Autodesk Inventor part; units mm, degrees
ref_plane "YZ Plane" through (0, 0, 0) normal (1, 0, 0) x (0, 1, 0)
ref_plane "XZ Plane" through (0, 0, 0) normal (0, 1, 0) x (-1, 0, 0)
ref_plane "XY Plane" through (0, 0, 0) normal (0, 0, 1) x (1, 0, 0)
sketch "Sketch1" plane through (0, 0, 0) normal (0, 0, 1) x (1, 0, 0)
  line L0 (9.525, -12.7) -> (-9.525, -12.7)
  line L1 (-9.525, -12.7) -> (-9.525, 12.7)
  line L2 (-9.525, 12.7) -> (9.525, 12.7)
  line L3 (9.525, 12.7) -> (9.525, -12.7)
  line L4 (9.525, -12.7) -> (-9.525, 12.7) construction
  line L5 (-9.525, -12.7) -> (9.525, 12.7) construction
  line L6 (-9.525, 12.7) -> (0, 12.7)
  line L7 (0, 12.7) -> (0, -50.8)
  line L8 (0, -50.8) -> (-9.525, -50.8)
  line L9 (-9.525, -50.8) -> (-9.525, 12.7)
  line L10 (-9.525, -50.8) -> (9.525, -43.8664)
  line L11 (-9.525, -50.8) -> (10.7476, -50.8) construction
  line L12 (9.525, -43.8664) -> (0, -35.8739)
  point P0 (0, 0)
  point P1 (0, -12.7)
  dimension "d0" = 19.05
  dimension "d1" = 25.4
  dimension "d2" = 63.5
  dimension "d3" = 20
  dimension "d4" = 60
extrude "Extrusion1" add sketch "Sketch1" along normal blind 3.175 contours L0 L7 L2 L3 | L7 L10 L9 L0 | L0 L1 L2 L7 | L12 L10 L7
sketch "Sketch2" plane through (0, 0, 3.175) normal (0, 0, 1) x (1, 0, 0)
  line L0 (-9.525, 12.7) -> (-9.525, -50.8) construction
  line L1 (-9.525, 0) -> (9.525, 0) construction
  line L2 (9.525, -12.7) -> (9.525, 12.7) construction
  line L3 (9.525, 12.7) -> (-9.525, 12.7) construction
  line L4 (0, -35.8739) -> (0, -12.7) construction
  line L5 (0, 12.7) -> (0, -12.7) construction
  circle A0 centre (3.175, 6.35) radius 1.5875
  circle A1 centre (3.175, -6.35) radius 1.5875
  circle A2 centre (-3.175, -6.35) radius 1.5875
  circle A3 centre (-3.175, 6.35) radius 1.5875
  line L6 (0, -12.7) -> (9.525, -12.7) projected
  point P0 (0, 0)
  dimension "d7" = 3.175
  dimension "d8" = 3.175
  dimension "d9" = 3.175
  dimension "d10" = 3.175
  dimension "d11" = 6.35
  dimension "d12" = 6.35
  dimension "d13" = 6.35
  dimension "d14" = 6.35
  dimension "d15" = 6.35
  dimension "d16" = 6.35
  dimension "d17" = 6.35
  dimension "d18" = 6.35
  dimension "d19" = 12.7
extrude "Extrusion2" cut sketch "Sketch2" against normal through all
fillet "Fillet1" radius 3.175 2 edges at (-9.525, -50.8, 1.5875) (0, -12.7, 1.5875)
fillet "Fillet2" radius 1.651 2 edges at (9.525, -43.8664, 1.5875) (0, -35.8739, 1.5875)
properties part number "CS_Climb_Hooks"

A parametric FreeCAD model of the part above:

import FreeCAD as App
import Part
import Sketcher

V = App.Vector
Q = App.Units.Quantity


def edges_at(feature, points):
    """Names of the edges that pass closest to the given points."""
    edges = feature.Shape.Edges
    near = lambda p: min(range(len(edges)), key=lambda i: edges[i].distToShape(Part.Vertex(*p))[0])
    return sorted({f"Edge{near(p) + 1}" for p in points})

doc = App.newDocument("Part")
body = doc.addObject("PartDesign::Body", "Body")

# Sketch on XY plane
sketch1 = body.newObject("Sketcher::SketchObject", "Sketch")
sketch1.AttachmentSupport = (doc.getObject("XY_Plane"), [""])
sketch1.MapMode = "FlatFace"
sketch1.addGeometry([
    Part.LineSegment(V(0, -13, 0), V(10, -13, 0)),  # 0
    Part.LineSegment(V(10, -13, 0), V(10, 13, 0)),  # 1
    Part.LineSegment(V(10, 13, 0), V(-10, 13, 0)),  # 2
    Part.LineSegment(V(-10, 13, 0), V(-10, -51, 0)),  # 3
    Part.LineSegment(V(-10, -51, 0), V(10, -44, 0)),  # 4
    Part.LineSegment(V(10, -44, 0), V(0, -36, 0)),  # 5
    Part.LineSegment(V(0, -36, 0), V(0, -13, 0)),  # 6
], False)
sketch1.addConstraint([
    Sketcher.Constraint("Coincident", 0, 2, 1, 1),
    Sketcher.Constraint("Coincident", 1, 2, 2, 1),
    Sketcher.Constraint("Coincident", 2, 2, 3, 1),
    Sketcher.Constraint("Coincident", 3, 2, 4, 1),
    Sketcher.Constraint("Coincident", 4, 2, 5, 1),
    Sketcher.Constraint("Coincident", 5, 2, 6, 1),
    Sketcher.Constraint("Coincident", 6, 2, 0, 1),
    Sketcher.Constraint("Horizontal", 0),
    Sketcher.Constraint("Vertical", 1),
    Sketcher.Constraint("Horizontal", 2),
    Sketcher.Constraint("Vertical", 3),
    Sketcher.Constraint("Vertical", 6),
    Sketcher.Constraint("Symmetric", 0, 2, 2, 2, -1, 1),
    Sketcher.Constraint("PointOnObject", 5, 2, -2),
    Sketcher.Constraint("Vertical", 1, 2, 4, 2),
    Sketcher.Constraint("DistanceY", 1, 1, 1, 2, Q("1 in")),
    Sketcher.Constraint("DistanceY", 3, 2, 3, 1, Q("2.5 in")),
    Sketcher.Constraint("Angle", 4, Q("20 deg")),
    Sketcher.Constraint("DistanceX", 2, 2, 2, 1, Q("0.75 in")),
    Sketcher.Constraint("Angle", 5, Q("139.9997 deg")),
])
pad1 = body.newObject("PartDesign::Pad", "Pad")
pad1.Profile = sketch1
pad1.Length = Q("0.125 in")

# Sketch on XY plane
sketch2 = body.newObject("Sketcher::SketchObject", "Sketch001")
sketch2.AttachmentSupport = (doc.getObject("XY_Plane"), [""])
sketch2.MapMode = "FlatFace"
sketch2.AttachmentOffset = App.Placement(V(0, 0, 0.125 * 25.4), App.Rotation())
sketch2.addGeometry([
    Part.Circle(V(3.2, 6.3, 0), V(0, 0, 1), 1.6),
    Part.Circle(V(3.2, -6.3, 0), V(0, 0, 1), 1.6),
    Part.Circle(V(-3.2, -6.3, 0), V(0, 0, 1), 1.6),
    Part.Circle(V(-3.2, 6.3, 0), V(0, 0, 1), 1.6),
], False)
sketch2.addConstraint([
    Sketcher.Constraint("Equal", 0, 1),
    Sketcher.Constraint("Equal", 1, 2),
    Sketcher.Constraint("Equal", 2, 3),
    Sketcher.Constraint("Symmetric", 0, 3, 2, 3, -1, 1),
    Sketcher.Constraint("Symmetric", 1, 3, 3, 3, -1, 1),
    Sketcher.Constraint("Symmetric", 1, 3, 2, 3, -2),
    Sketcher.Constraint("Diameter", 0, Q("0.125 in")),
    Sketcher.Constraint("DistanceY", 1, 3, 0, 3, Q("0.5 in")),
    Sketcher.Constraint("DistanceX", 2, 3, 1, 3, Q("0.25 in")),
])
pocket1 = body.newObject("PartDesign::Pocket", "Pocket")
pocket1.Profile = sketch2
pocket1.Type = "ThroughAll"
doc.recompute()

fillet = body.newObject("PartDesign::Fillet", "Fillet")
fillet.Base = (pocket1, edges_at(pocket1, [(-9.525, -50.8, 1.587), (0, -12.7, 1.587)]))
fillet.Radius = Q("0.125 in")
doc.recompute()

fillet2 = body.newObject("PartDesign::Fillet", "Fillet001")
fillet2.Base = (fillet, edges_at(fillet, [(9.525, -43.866, 1.587), (0, -35.874, 1.587)]))
fillet2.Radius = Q("0.065 in")

doc.recompute()
